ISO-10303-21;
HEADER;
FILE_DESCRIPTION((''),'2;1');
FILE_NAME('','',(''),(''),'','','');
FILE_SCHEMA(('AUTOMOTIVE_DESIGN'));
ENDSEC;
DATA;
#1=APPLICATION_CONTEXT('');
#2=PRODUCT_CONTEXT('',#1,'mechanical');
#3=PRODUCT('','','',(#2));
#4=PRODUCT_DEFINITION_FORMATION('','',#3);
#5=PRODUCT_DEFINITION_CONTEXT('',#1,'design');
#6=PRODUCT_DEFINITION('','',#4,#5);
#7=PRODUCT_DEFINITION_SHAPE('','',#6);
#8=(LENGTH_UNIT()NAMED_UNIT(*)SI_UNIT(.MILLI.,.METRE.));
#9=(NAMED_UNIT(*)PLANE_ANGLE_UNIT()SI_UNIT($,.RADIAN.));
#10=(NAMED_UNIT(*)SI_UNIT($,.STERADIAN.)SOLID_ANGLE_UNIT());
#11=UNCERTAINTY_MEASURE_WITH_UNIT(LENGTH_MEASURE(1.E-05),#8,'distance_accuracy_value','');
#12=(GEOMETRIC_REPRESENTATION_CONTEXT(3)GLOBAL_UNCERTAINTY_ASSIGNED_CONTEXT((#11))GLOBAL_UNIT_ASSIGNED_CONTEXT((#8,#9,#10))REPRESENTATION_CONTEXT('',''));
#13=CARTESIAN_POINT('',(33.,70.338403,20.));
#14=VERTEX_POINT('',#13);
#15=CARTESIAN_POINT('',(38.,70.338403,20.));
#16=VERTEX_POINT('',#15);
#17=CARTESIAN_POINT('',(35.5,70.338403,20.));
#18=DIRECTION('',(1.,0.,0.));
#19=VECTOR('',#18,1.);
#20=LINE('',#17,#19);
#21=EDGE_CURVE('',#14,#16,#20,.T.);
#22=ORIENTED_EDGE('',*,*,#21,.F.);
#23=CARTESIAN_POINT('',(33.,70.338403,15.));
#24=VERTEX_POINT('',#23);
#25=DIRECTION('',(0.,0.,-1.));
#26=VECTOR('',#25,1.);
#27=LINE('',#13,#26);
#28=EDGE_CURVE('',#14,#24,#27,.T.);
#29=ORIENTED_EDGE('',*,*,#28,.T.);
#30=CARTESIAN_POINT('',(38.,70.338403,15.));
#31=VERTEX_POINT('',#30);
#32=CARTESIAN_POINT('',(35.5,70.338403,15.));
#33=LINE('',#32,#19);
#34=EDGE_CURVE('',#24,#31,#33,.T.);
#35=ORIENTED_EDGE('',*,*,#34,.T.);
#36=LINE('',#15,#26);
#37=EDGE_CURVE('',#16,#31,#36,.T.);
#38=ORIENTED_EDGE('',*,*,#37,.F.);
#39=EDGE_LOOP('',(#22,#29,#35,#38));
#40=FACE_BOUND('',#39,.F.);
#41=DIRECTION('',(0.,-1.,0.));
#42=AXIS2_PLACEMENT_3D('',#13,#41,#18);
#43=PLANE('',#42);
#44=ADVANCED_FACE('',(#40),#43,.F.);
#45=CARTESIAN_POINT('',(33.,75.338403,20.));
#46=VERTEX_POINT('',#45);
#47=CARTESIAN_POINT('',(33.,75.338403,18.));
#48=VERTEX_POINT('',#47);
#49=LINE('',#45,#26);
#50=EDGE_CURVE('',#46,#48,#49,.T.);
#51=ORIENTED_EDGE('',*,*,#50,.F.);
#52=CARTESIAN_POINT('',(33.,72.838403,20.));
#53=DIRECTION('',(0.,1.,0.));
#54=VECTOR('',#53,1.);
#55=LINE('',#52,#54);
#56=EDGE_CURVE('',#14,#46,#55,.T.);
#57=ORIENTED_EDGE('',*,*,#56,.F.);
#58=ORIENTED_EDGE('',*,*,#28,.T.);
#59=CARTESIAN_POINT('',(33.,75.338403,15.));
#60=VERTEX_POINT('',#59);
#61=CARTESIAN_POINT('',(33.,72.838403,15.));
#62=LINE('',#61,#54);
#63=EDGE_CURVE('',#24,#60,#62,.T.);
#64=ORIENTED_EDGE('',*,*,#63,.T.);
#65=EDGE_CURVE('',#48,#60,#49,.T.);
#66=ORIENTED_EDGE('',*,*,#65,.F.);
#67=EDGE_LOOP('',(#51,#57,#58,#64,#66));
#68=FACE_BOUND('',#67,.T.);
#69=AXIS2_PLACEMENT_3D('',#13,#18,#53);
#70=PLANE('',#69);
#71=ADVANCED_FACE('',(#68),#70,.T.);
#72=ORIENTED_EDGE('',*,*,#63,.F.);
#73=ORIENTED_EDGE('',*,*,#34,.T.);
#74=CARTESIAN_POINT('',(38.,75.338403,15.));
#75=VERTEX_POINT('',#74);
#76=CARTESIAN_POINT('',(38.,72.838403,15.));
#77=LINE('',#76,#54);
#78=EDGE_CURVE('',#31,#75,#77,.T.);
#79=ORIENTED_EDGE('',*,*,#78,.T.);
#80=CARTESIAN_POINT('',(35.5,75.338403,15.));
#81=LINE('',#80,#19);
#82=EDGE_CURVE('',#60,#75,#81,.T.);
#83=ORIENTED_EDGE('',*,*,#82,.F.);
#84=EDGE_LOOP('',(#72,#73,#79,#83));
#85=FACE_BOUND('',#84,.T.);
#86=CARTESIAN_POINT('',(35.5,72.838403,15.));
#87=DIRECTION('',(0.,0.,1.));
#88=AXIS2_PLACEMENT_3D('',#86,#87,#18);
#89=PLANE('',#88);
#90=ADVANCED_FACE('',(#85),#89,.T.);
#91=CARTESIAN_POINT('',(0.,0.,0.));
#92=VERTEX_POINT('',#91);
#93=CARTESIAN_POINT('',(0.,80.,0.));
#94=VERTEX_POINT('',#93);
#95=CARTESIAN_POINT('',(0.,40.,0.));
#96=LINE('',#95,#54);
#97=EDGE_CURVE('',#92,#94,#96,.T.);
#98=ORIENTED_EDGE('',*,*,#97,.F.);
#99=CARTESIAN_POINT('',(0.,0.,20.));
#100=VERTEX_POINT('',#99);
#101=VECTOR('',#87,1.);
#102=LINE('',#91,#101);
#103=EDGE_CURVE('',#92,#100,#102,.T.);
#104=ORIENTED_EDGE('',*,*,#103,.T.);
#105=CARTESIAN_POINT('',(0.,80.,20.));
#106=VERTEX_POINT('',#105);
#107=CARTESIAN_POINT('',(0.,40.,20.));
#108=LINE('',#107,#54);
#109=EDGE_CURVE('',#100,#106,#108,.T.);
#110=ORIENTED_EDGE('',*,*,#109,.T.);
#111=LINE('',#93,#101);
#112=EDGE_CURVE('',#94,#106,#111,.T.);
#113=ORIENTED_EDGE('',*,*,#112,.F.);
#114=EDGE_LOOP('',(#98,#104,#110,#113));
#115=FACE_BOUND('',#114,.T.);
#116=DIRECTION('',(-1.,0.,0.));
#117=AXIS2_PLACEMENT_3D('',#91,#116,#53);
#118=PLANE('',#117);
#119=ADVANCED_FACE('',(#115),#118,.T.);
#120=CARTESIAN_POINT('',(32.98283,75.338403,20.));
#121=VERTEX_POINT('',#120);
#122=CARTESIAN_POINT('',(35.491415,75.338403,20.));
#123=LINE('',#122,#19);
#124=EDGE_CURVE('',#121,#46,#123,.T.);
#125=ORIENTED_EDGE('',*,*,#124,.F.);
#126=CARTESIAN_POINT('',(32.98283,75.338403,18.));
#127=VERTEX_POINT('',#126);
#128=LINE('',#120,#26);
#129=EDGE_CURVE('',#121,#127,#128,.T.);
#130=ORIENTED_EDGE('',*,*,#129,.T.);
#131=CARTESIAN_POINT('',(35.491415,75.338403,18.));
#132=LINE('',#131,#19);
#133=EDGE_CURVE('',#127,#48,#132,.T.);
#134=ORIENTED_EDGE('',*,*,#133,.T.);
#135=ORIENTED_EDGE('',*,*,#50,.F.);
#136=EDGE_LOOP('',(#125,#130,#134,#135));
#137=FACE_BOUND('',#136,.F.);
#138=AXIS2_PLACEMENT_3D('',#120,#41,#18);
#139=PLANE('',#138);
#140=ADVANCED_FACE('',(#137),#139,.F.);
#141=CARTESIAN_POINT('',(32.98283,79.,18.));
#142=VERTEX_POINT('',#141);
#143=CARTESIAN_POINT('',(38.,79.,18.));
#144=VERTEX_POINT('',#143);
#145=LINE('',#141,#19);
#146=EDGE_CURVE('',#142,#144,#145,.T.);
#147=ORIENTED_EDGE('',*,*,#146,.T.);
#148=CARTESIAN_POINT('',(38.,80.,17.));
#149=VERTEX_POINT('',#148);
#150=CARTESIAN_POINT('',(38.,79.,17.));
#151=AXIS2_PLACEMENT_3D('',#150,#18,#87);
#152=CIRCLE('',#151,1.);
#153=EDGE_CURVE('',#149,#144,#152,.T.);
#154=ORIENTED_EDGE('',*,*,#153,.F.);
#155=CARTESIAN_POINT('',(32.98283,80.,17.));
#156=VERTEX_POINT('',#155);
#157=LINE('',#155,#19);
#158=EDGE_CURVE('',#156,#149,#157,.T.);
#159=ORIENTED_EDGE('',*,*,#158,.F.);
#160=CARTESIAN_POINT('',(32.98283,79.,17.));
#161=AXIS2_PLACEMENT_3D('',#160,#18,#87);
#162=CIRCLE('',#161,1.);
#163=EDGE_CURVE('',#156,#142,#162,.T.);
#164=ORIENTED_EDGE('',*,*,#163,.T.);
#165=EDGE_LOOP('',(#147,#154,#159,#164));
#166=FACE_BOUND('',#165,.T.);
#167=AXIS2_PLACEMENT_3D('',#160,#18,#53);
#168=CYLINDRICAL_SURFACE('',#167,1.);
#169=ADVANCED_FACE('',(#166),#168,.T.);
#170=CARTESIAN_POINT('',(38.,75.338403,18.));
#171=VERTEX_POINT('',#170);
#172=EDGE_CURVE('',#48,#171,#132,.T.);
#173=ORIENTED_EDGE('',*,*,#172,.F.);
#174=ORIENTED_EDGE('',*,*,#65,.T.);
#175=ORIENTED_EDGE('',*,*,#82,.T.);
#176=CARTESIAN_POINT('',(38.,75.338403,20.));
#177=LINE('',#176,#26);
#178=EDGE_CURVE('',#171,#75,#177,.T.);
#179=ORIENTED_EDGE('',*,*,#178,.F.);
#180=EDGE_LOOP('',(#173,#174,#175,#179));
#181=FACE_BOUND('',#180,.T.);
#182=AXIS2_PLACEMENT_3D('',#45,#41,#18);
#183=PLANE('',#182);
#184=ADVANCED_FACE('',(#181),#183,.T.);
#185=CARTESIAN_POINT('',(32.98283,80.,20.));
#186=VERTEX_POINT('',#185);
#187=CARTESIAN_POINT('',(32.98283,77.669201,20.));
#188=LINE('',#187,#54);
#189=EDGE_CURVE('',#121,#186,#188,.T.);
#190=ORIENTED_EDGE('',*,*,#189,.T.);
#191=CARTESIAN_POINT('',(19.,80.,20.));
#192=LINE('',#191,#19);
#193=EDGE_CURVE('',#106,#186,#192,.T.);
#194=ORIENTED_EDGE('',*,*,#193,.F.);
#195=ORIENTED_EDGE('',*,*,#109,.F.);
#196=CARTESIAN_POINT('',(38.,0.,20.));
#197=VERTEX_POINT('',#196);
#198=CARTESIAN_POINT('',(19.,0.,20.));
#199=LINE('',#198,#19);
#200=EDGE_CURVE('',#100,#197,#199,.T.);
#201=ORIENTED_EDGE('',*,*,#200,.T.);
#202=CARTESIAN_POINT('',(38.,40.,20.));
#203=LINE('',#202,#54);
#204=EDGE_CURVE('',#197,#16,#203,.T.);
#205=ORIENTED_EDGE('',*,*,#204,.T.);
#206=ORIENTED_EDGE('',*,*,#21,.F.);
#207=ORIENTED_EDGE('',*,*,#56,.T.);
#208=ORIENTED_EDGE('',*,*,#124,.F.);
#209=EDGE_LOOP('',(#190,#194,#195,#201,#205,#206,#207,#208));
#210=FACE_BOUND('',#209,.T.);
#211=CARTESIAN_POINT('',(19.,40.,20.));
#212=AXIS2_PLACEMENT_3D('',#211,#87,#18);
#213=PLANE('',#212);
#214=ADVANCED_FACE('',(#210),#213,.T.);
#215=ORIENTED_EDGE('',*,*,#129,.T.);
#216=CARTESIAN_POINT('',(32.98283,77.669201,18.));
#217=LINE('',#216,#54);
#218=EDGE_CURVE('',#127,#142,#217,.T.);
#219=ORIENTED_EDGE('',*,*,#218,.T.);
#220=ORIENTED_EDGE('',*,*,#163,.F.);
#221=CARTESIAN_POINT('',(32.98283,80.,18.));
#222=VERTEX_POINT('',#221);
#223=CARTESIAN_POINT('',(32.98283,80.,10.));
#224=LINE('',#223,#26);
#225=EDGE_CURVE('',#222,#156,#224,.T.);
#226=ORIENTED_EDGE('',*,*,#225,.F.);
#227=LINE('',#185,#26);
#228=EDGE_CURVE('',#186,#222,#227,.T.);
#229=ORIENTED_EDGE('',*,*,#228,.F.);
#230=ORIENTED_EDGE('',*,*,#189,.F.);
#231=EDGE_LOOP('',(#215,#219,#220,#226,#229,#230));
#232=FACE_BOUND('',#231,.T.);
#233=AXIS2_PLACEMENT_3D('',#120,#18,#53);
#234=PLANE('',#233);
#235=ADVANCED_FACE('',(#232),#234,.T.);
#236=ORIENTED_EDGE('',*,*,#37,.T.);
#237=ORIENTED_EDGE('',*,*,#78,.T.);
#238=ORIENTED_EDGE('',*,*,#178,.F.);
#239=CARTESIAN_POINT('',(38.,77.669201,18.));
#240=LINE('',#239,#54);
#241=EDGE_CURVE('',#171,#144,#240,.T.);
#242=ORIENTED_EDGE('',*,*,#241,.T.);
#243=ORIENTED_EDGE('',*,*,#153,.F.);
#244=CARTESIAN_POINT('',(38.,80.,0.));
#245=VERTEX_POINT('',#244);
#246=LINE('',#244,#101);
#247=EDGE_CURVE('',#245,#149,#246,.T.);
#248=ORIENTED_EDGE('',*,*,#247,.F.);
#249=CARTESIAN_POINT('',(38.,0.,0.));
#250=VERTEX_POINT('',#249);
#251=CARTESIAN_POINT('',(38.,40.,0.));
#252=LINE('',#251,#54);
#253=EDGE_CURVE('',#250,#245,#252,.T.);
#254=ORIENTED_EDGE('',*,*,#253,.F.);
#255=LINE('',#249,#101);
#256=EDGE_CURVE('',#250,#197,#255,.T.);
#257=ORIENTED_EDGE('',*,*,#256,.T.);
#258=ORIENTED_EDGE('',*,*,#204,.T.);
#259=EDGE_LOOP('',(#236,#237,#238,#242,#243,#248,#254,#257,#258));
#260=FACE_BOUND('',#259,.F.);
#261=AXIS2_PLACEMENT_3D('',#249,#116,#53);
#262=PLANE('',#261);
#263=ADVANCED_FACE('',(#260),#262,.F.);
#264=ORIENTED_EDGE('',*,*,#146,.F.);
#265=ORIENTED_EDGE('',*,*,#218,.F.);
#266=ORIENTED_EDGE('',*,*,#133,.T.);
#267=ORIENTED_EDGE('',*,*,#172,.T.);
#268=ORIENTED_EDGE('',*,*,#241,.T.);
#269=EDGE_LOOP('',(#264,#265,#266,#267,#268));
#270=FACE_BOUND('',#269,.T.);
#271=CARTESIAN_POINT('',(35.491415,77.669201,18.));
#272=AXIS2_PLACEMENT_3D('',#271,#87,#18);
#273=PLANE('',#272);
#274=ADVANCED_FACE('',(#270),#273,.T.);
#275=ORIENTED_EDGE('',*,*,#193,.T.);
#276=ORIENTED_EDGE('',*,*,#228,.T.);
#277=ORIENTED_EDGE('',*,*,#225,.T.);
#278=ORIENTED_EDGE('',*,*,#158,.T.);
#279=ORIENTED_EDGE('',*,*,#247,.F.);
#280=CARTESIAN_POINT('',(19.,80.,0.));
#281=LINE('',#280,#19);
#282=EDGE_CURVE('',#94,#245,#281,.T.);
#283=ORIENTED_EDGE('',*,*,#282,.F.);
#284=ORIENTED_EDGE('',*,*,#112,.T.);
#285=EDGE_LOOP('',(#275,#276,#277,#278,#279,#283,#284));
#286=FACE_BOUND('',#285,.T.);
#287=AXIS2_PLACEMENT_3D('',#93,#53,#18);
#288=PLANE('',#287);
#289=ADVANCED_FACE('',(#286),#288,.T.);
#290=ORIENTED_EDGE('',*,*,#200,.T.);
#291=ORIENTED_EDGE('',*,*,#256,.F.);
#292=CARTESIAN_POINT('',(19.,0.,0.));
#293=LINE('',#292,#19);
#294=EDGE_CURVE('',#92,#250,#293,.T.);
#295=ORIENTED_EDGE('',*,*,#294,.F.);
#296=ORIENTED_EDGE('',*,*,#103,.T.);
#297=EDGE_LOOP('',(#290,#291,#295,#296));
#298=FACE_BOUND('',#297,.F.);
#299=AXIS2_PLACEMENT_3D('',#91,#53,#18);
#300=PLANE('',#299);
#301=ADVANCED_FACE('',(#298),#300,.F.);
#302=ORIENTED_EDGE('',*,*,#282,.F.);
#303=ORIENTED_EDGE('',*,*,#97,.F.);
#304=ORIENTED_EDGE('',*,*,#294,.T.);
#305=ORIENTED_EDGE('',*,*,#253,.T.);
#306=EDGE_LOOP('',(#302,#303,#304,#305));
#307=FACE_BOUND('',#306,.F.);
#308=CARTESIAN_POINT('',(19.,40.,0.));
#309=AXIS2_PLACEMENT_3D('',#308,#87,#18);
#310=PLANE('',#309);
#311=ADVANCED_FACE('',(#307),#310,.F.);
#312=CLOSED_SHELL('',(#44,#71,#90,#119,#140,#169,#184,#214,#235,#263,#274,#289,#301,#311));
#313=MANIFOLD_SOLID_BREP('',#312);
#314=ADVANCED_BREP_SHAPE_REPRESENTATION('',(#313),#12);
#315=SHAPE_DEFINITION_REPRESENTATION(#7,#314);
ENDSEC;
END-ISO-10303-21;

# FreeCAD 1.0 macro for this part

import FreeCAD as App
import Part
import Sketcher
from FreeCAD import Vector
Q = App.Units.Quantity


def edges_at(feature, points):
    """Names of the edges that pass closest to the given points."""
    edges = feature.Shape.Edges
    near = lambda p: min(range(len(edges)), key=lambda i: edges[i].distToShape(Part.Vertex(*p))[0])
    return sorted({f"Edge{near(p) + 1}" for p in points})

doc = App.newDocument("Part")
body = doc.addObject("PartDesign::Body", "Body")

# Sketch on XY plane
sketch1 = doc.addObject("Sketcher::SketchObject", "Sketch")
body.addObject(sketch1)
sketch1.AttachmentSupport = (doc.XY_Plane, [""])
sketch1.MapMode = "FlatFace"
sketch1.addGeometry([
    Part.LineSegment(Vector(0, 80, 0), Vector(0, 0, 0)),
    Part.LineSegment(Vector(0, 0, 0), Vector(38, 0, 0)),
    Part.LineSegment(Vector(38, 0, 0), Vector(38, 80, 0)),
    Part.LineSegment(Vector(38, 80, 0), Vector(0, 80, 0)),
], False)
sketch1.addConstraint([
    Sketcher.Constraint("Coincident", 0, 2, 1, 1),
    Sketcher.Constraint("Coincident", 1, 2, 2, 1),
    Sketcher.Constraint("Coincident", 2, 2, 3, 1),
    Sketcher.Constraint("Coincident", 3, 2, 0, 1),
    Sketcher.Constraint("Vertical", 0),
    Sketcher.Constraint("Horizontal", 1),
    Sketcher.Constraint("Vertical", 2),
    Sketcher.Constraint("Horizontal", 3),
    Sketcher.Constraint("Coincident", 0, 2, -1, 1),
    Sketcher.Constraint("DistanceX", 1, 1, 1, 2, Q("38 mm")),
    Sketcher.Constraint("DistanceY", 0, 2, 0, 1, Q("80 mm")),
])
pad1 = doc.addObject("PartDesign::Pad", "Pad")
body.addObject(pad1)
pad1.Profile = sketch1
pad1.Length = 20

# Sketch on XY plane
sketch2 = doc.addObject("Sketcher::SketchObject", "Sketch001")
body.addObject(sketch2)
sketch2.AttachmentSupport = (doc.XY_Plane, [""])
sketch2.MapMode = "FlatFace"
sketch2.AttachmentOffset = App.Placement(Vector(0, 0, 20), App.Rotation())
sketch2.addGeometry([
    Part.LineSegment(Vector(33, 75.338403, 0), Vector(33, 70.338403, 0)),
    Part.LineSegment(Vector(33, 70.338403, 0), Vector(38, 70.338403, 0)),
    Part.LineSegment(Vector(38, 70.338403, 0), Vector(38, 75.338403, 0)),
    Part.LineSegment(Vector(38, 75.338403, 0), Vector(33, 75.338403, 0)),
], False)
sketch2.addConstraint([
    Sketcher.Constraint("Coincident", 0, 2, 1, 1),
    Sketcher.Constraint("Coincident", 1, 2, 2, 1),
    Sketcher.Constraint("Coincident", 2, 2, 3, 1),
    Sketcher.Constraint("Coincident", 3, 2, 0, 1),
    Sketcher.Constraint("Vertical", 0),
    Sketcher.Constraint("Horizontal", 1),
    Sketcher.Constraint("Vertical", 2),
    Sketcher.Constraint("Horizontal", 3),
    Sketcher.Constraint("Equal", 3, 0),
    Sketcher.Constraint("DistanceX", 1, 1, 1, 2, Q("5 mm")),
    Sketcher.Constraint("DistanceX", -1, 1, 0, 2, Q("33 mm")),
    Sketcher.Constraint("DistanceY", -1, 1, 0, 2, Q("70.338403 mm")),
])
pocket1 = doc.addObject("PartDesign::Pocket", "Pocket")
body.addObject(pocket1)
pocket1.Profile = sketch2
pocket1.Length = 5

# Sketch on XY plane
sketch3 = doc.addObject("Sketcher::SketchObject", "Sketch002")
body.addObject(sketch3)
sketch3.AttachmentSupport = (doc.XY_Plane, [""])
sketch3.MapMode = "FlatFace"
sketch3.AttachmentOffset = App.Placement(Vector(0, 0, 20), App.Rotation())
sketch3.addGeometry([
    Part.LineSegment(Vector(32.98283, 80, 0), Vector(32.98283, 75.338403, 0)),
    Part.LineSegment(Vector(32.98283, 75.338403, 0), Vector(38, 75.338403, 0)),
    Part.LineSegment(Vector(38, 75.338403, 0), Vector(38, 80, 0)),
    Part.LineSegment(Vector(38, 80, 0), Vector(32.98283, 80, 0)),
], False)
sketch3.addConstraint([
    Sketcher.Constraint("Coincident", 0, 2, 1, 1),
    Sketcher.Constraint("Coincident", 1, 2, 2, 1),
    Sketcher.Constraint("Coincident", 2, 2, 3, 1),
    Sketcher.Constraint("Coincident", 3, 2, 0, 1),
    Sketcher.Constraint("Vertical", 0),
    Sketcher.Constraint("Horizontal", 1),
    Sketcher.Constraint("Vertical", 2),
    Sketcher.Constraint("Horizontal", 3),
    Sketcher.Constraint("DistanceX", -1, 1, 1, 2, Q("38 mm")),
    Sketcher.Constraint("DistanceY", -1, 1, 2, 2, Q("80 mm")),
    Sketcher.Constraint("DistanceX", 1, 1, 1, 2, Q("5.01717 mm")),
    Sketcher.Constraint("DistanceY", 0, 2, 0, 1, Q("4.661597 mm")),
])
pocket2 = doc.addObject("PartDesign::Pocket", "Pocket001")
body.addObject(pocket2)
pocket2.Profile = sketch3
pocket2.Length = 2
doc.recompute()

fillet = doc.addObject("PartDesign::Fillet", "Fillet")
body.addObject(fillet)
fillet.Base = (pocket2, edges_at(pocket2, [(35.491, 80, 18)]))
fillet.Radius = 1

doc.recompute()
